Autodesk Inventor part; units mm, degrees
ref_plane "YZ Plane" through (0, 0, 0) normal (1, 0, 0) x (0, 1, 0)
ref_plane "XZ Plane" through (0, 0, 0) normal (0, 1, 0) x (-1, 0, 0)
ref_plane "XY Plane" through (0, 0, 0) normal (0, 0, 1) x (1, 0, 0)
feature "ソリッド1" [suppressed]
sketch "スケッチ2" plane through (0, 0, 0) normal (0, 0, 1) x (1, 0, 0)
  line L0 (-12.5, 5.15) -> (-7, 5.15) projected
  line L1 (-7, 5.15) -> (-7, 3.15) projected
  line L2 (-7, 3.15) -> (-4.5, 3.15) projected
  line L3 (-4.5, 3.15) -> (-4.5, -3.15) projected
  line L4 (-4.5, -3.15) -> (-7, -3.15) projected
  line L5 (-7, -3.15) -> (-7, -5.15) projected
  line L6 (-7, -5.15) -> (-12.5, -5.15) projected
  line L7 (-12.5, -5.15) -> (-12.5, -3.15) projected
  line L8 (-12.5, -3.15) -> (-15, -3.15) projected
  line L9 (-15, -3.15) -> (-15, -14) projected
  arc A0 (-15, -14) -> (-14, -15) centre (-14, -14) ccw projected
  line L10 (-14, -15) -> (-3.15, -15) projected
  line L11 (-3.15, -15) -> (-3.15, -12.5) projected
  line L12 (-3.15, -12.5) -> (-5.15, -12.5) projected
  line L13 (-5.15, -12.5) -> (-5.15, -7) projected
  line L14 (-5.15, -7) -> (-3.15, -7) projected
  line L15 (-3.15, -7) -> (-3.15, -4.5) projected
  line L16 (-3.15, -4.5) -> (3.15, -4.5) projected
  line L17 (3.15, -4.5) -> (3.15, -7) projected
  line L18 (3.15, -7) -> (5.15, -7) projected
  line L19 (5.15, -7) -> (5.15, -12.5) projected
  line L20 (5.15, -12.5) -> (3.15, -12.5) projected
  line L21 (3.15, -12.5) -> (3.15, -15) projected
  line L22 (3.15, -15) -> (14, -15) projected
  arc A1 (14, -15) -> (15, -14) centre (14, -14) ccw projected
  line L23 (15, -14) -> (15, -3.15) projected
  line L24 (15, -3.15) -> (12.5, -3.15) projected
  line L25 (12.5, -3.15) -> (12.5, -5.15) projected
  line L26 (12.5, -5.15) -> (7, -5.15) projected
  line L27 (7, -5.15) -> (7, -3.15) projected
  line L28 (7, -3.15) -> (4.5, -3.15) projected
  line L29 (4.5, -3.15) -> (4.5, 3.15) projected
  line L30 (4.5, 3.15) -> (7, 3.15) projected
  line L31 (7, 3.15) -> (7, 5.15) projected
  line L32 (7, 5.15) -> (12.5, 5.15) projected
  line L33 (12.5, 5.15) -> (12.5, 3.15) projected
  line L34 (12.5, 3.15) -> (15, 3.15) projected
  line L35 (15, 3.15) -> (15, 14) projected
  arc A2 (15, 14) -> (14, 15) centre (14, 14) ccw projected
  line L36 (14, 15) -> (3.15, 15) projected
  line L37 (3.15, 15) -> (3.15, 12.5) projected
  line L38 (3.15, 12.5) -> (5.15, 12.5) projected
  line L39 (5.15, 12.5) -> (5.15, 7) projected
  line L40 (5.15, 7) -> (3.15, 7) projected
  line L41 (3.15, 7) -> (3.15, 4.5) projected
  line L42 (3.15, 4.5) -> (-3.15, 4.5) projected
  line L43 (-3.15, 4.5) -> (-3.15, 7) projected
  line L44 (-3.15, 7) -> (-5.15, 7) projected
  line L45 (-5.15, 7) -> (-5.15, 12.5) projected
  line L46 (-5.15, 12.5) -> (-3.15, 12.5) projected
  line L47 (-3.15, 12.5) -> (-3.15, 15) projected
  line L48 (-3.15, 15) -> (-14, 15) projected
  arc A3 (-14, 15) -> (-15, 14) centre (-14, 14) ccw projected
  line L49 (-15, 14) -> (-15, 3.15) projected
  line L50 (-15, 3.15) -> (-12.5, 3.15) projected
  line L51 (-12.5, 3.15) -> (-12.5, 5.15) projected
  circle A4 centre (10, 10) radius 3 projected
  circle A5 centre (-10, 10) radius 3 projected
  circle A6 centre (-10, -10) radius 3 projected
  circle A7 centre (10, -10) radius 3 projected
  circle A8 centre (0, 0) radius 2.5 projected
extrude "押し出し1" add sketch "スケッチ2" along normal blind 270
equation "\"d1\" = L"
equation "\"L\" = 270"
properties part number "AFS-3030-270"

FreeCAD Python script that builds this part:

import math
import FreeCAD as App
import Part
import Sketcher
from FreeCAD import Vector
Q = App.Units.Quantity

doc = App.newDocument("Part")
params = doc.addObject("Spreadsheet::Sheet", "Params")
for row, (alias, value) in enumerate([
    ("sketch1_diameter", "6 mm"),
    ("sketch1_diameter2", "5 mm"),
    ("sketch1_radius", "1 mm"),
    ("sketch1_width", "2 mm"),
    ("sketch1_width2", "5.5 mm"),
    ("pad1_length", "270 mm"),
], start=1):
    params.set(f"A{row}", alias)
    params.set(f"B{row}", "=" + value)
    params.setAlias(f"B{row}", alias)

body = doc.addObject("PartDesign::Body", "Body")

# Sketch on XY plane
sketch1 = body.newObject("Sketcher::SketchObject", "Sketch")
sketch1.AttachmentSupport = (doc.getObject("XY_Plane"), [""])
sketch1.MapMode = "FlatFace"
sketch1.addGeometry([
    Part.LineSegment(Vector(-12.5, 3.1, 0), Vector(-12.5, 5.2, 0)),  # 0
    Part.LineSegment(Vector(-12.5, 5.2, 0), Vector(-7, 5.2, 0)),  # 1
    Part.LineSegment(Vector(-7, 5.2, 0), Vector(-7, 3.1, 0)),  # 2
    Part.LineSegment(Vector(-7, 3.1, 0), Vector(-4.5, 3.1, 0)),  # 3
    Part.LineSegment(Vector(-4.5, 3.1, 0), Vector(-4.5, -3.1, 0)),  # 4
    Part.LineSegment(Vector(-4.5, -3.1, 0), Vector(-7, -3.1, 0)),  # 5
    Part.LineSegment(Vector(-7, -3.1, 0), Vector(-7, -5.2, 0)),  # 6
    Part.LineSegment(Vector(-7, -5.2, 0), Vector(-12.5, -5.2, 0)),  # 7
    Part.LineSegment(Vector(-12.5, -5.2, 0), Vector(-12.5, -3.1, 0)),  # 8
    Part.LineSegment(Vector(-12.5, -3.1, 0), Vector(-15, -3.1, 0)),  # 9
    Part.LineSegment(Vector(-15, -3.1, 0), Vector(-15, -14, 0)),  # 10
    Part.ArcOfCircle(Part.Circle(Vector(-14, -14, 0), Vector(0, 0, 1), 1), math.radians(180), math.radians(270)),  # 11
    Part.LineSegment(Vector(-14, -15, 0), Vector(-3.1, -15, 0)),  # 12
    Part.LineSegment(Vector(-3.1, -15, 0), Vector(-3.1, -12.5, 0)),  # 13
    Part.LineSegment(Vector(-3.1, -12.5, 0), Vector(-5.2, -12.5, 0)),  # 14
    Part.LineSegment(Vector(-5.2, -12.5, 0), Vector(-5.2, -7, 0)),  # 15
    Part.LineSegment(Vector(-5.2, -7, 0), Vector(-3.1, -7, 0)),  # 16
    Part.LineSegment(Vector(-3.1, -7, 0), Vector(-3.1, -4.5, 0)),  # 17
    Part.LineSegment(Vector(-3.1, -4.5, 0), Vector(3.1, -4.5, 0)),  # 18
    Part.LineSegment(Vector(3.1, -4.5, 0), Vector(3.1, -7, 0)),  # 19
    Part.LineSegment(Vector(3.1, -7, 0), Vector(5.2, -7, 0)),  # 20
    Part.LineSegment(Vector(5.2, -7, 0), Vector(5.2, -12.5, 0)),  # 21
    Part.LineSegment(Vector(5.2, -12.5, 0), Vector(3.1, -12.5, 0)),  # 22
    Part.LineSegment(Vector(3.1, -12.5, 0), Vector(3.1, -15, 0)),  # 23
    Part.LineSegment(Vector(3.1, -15, 0), Vector(14, -15, 0)),  # 24
    Part.ArcOfCircle(Part.Circle(Vector(14, -14, 0), Vector(0, 0, 1), 1), math.radians(-90), math.radians(0)),  # 25
    Part.LineSegment(Vector(15, -14, 0), Vector(15, -3.1, 0)),  # 26
    Part.LineSegment(Vector(15, -3.1, 0), Vector(12.5, -3.1, 0)),  # 27
    Part.LineSegment(Vector(12.5, -3.1, 0), Vector(12.5, -5.2, 0)),  # 28
    Part.LineSegment(Vector(12.5, -5.2, 0), Vector(7, -5.2, 0)),  # 29
    Part.LineSegment(Vector(7, -5.2, 0), Vector(7, -3.1, 0)),  # 30
    Part.LineSegment(Vector(7, -3.1, 0), Vector(4.5, -3.1, 0)),  # 31
    Part.LineSegment(Vector(4.5, -3.1, 0), Vector(4.5, 3.1, 0)),  # 32
    Part.LineSegment(Vector(4.5, 3.1, 0), Vector(7, 3.1, 0)),  # 33
    Part.LineSegment(Vector(7, 3.1, 0), Vector(7, 5.2, 0)),  # 34
    Part.LineSegment(Vector(7, 5.2, 0), Vector(12.5, 5.2, 0)),  # 35
    Part.LineSegment(Vector(12.5, 5.2, 0), Vector(12.5, 3.1, 0)),  # 36
    Part.LineSegment(Vector(12.5, 3.1, 0), Vector(15, 3.1, 0)),  # 37
    Part.LineSegment(Vector(15, 3.1, 0), Vector(15, 14, 0)),  # 38
    Part.ArcOfCircle(Part.Circle(Vector(14, 14, 0), Vector(0, 0, 1), 1), math.radians(0), math.radians(90)),  # 39
    Part.LineSegment(Vector(14, 15, 0), Vector(3.1, 15, 0)),  # 40
    Part.LineSegment(Vector(3.1, 15, 0), Vector(3.1, 12.5, 0)),  # 41
    Part.LineSegment(Vector(3.1, 12.5, 0), Vector(5.2, 12.5, 0)),  # 42
    Part.LineSegment(Vector(5.2, 12.5, 0), Vector(5.2, 7, 0)),  # 43
    Part.LineSegment(Vector(5.2, 7, 0), Vector(3.1, 7, 0)),  # 44
    Part.LineSegment(Vector(3.1, 7, 0), Vector(3.1, 4.5, 0)),  # 45
    Part.LineSegment(Vector(3.1, 4.5, 0), Vector(-3.1, 4.5, 0)),  # 46
    Part.LineSegment(Vector(-3.1, 4.5, 0), Vector(-3.1, 7, 0)),  # 47
    Part.LineSegment(Vector(-3.1, 7, 0), Vector(-5.2, 7, 0)),  # 48
    Part.LineSegment(Vector(-5.2, 7, 0), Vector(-5.2, 12.5, 0)),  # 49
    Part.LineSegment(Vector(-5.2, 12.5, 0), Vector(-3.1, 12.5, 0)),  # 50
    Part.LineSegment(Vector(-3.1, 12.5, 0), Vector(-3.1, 15, 0)),  # 51
    Part.LineSegment(Vector(-3.1, 15, 0), Vector(-14, 15, 0)),  # 52
    Part.ArcOfCircle(Part.Circle(Vector(-14, 14, 0), Vector(0, 0, 1), 1), math.radians(90), math.radians(180)),  # 53
    Part.LineSegment(Vector(-15, 14, 0), Vector(-15, 3.1, 0)),  # 54
    Part.LineSegment(Vector(-15, 3.1, 0), Vector(-12.5, 3.1, 0)),  # 55
    Part.Circle(Vector(-10, -10, 0), Vector(0, 0, 1), 3),  # 56
    Part.Circle(Vector(10, -10, 0), Vector(0, 0, 1), 3),  # 57
    Part.Circle(Vector(-10, 10, 0), Vector(0, 0, 1), 3),  # 58
    Part.Circle(Vector(0, 0, 0), Vector(0, 0, 1), 2.5),  # 59
    Part.Circle(Vector(10, 10, 0), Vector(0, 0, 1), 3),  # 60
], False)
sketch1.addConstraint([
    Sketcher.Constraint("Coincident", 0, 2, 1, 1),
    Sketcher.Constraint("Coincident", 1, 2, 2, 1),
    Sketcher.Constraint("Coincident", 2, 2, 3, 1),
    Sketcher.Constraint("Coincident", 3, 2, 4, 1),
    Sketcher.Constraint("Coincident", 4, 2, 5, 1),
    Sketcher.Constraint("Coincident", 5, 2, 6, 1),
    Sketcher.Constraint("Coincident", 6, 2, 7, 1),
    Sketcher.Constraint("Coincident", 7, 2, 8, 1),
    Sketcher.Constraint("Coincident", 8, 2, 9, 1),
    Sketcher.Constraint("Coincident", 9, 2, 10, 1),
    Sketcher.Constraint("Tangent", 10, 2, 11, 1),
    Sketcher.Constraint("Tangent", 11, 2, 12, 1),
    Sketcher.Constraint("Coincident", 12, 2, 13, 1),
    Sketcher.Constraint("Coincident", 13, 2, 14, 1),
    Sketcher.Constraint("Coincident", 14, 2, 15, 1),
    Sketcher.Constraint("Coincident", 15, 2, 16, 1),
    Sketcher.Constraint("Coincident", 16, 2, 17, 1),
    Sketcher.Constraint("Coincident", 17, 2, 18, 1),
    Sketcher.Constraint("Coincident", 18, 2, 19, 1),
    Sketcher.Constraint("Coincident", 19, 2, 20, 1),
    Sketcher.Constraint("Coincident", 20, 2, 21, 1),
    Sketcher.Constraint("Coincident", 21, 2, 22, 1),
    Sketcher.Constraint("Coincident", 22, 2, 23, 1),
    Sketcher.Constraint("Coincident", 23, 2, 24, 1),
    Sketcher.Constraint("Tangent", 24, 2, 25, 1),
    Sketcher.Constraint("Tangent", 25, 2, 26, 1),
    Sketcher.Constraint("Coincident", 26, 2, 27, 1),
    Sketcher.Constraint("Coincident", 27, 2, 28, 1),
    Sketcher.Constraint("Coincident", 28, 2, 29, 1),
    Sketcher.Constraint("Coincident", 29, 2, 30, 1),
    Sketcher.Constraint("Coincident", 30, 2, 31, 1),
    Sketcher.Constraint("Coincident", 31, 2, 32, 1),
    Sketcher.Constraint("Coincident", 32, 2, 33, 1),
    Sketcher.Constraint("Coincident", 33, 2, 34, 1),
    Sketcher.Constraint("Coincident", 34, 2, 35, 1),
    Sketcher.Constraint("Coincident", 35, 2, 36, 1),
    Sketcher.Constraint("Coincident", 36, 2, 37, 1),
    Sketcher.Constraint("Coincident", 37, 2, 38, 1),
    Sketcher.Constraint("Tangent", 38, 2, 39, 1),
    Sketcher.Constraint("Tangent", 39, 2, 40, 1),
    Sketcher.Constraint("Coincident", 40, 2, 41, 1),
    Sketcher.Constraint("Coincident", 41, 2, 42, 1),
    Sketcher.Constraint("Coincident", 42, 2, 43, 1),
    Sketcher.Constraint("Coincident", 43, 2, 44, 1),
    Sketcher.Constraint("Coincident", 44, 2, 45, 1),
    Sketcher.Constraint("Coincident", 45, 2, 46, 1),
    Sketcher.Constraint("Coincident", 46, 2, 47, 1),
    Sketcher.Constraint("Coincident", 47, 2, 48, 1),
    Sketcher.Constraint("Coincident", 48, 2, 49, 1),
    Sketcher.Constraint("Coincident", 49, 2, 50, 1),
    Sketcher.Constraint("Coincident", 50, 2, 51, 1),
    Sketcher.Constraint("Coincident", 51, 2, 52, 1),
    Sketcher.Constraint("Tangent", 52, 2, 53, 1),
    Sketcher.Constraint("Tangent", 53, 2, 54, 1),
    Sketcher.Constraint("Coincident", 54, 2, 55, 1),
    Sketcher.Constraint("Coincident", 55, 2, 0, 1),
    Sketcher.Constraint("Vertical", 0),
    Sketcher.Constraint("Horizontal", 1),
    Sketcher.Constraint("Vertical", 2),
    Sketcher.Constraint("Horizontal", 3),
    Sketcher.Constraint("Vertical", 4),
    Sketcher.Constraint("Horizontal", 5),
    Sketcher.Constraint("Vertical", 6),
    Sketcher.Constraint("Horizontal", 7),
    Sketcher.Constraint("Vertical", 8),
    Sketcher.Constraint("Horizontal", 9),
    Sketcher.Constraint("Vertical", 10),
    Sketcher.Constraint("Horizontal", 12),
    Sketcher.Constraint("Vertical", 13),
    Sketcher.Constraint("Horizontal", 14),
    Sketcher.Constraint("Vertical", 15),
    Sketcher.Constraint("Horizontal", 16),
    Sketcher.Constraint("Vertical", 17),
    Sketcher.Constraint("Horizontal", 18),
    Sketcher.Constraint("Vertical", 19),
    Sketcher.Constraint("Horizontal", 20),
    Sketcher.Constraint("Vertical", 21),
    Sketcher.Constraint("Horizontal", 22),
    Sketcher.Constraint("Vertical", 23),
    Sketcher.Constraint("Horizontal", 24),
    Sketcher.Constraint("Vertical", 26),
    Sketcher.Constraint("Horizontal", 27),
    Sketcher.Constraint("Vertical", 28),
    Sketcher.Constraint("Horizontal", 29),
    Sketcher.Constraint("Vertical", 30),
    Sketcher.Constraint("Horizontal", 31),
    Sketcher.Constraint("Vertical", 32),
    Sketcher.Constraint("Horizontal", 33),
    Sketcher.Constraint("Vertical", 34),
    Sketcher.Constraint("Horizontal", 35),
    Sketcher.Constraint("Vertical", 36),
    Sketcher.Constraint("Horizontal", 37),
    Sketcher.Constraint("Vertical", 38),
    Sketcher.Constraint("Horizontal", 40),
    Sketcher.Constraint("Vertical", 41),
    Sketcher.Constraint("Horizontal", 42),
    Sketcher.Constraint("Vertical", 43),
    Sketcher.Constraint("Horizontal", 44),
    Sketcher.Constraint("Vertical", 45),
    Sketcher.Constraint("Horizontal", 46),
    Sketcher.Constraint("Vertical", 47),
    Sketcher.Constraint("Horizontal", 48),
    Sketcher.Constraint("Vertical", 49),
    Sketcher.Constraint("Horizontal", 50),
    Sketcher.Constraint("Vertical", 51),
    Sketcher.Constraint("Horizontal", 52),
    Sketcher.Constraint("Vertical", 54),
    Sketcher.Constraint("Horizontal", 55),
    Sketcher.Constraint("Coincident", 59, 3, -1, 1),
    Sketcher.Constraint("Equal", 11, 25),
    Sketcher.Constraint("Equal", 25, 39),
    Sketcher.Constraint("Equal", 39, 53),
    Sketcher.Constraint("Equal", 56, 57),
    Sketcher.Constraint("Equal", 57, 58),
    Sketcher.Constraint("Equal", 58, 60),
    Sketcher.Constraint("Symmetric", 11, 3, 39, 3, -1, 1),
    Sketcher.Constraint("Symmetric", 25, 3, 53, 3, -1, 1),
    Sketcher.Constraint("Symmetric", 57, 3, 58, 3, -1, 1),
    Sketcher.Constraint("Symmetric", 56, 3, 60, 3, -1, 1),
    Sketcher.Constraint("Symmetric", 0, 2, 28, 2, -1, 1),
    Sketcher.Constraint("Symmetric", 2, 2, 30, 2, -1, 1),
    Sketcher.Constraint("Symmetric", 4, 2, 32, 2, -1, 1),
    Sketcher.Constraint("Symmetric", 6, 2, 34, 2, -1, 1),
    Sketcher.Constraint("Symmetric", 8, 2, 36, 2, -1, 1),
    Sketcher.Constraint("Symmetric", 13, 2, 41, 2, -1, 1),
    Sketcher.Constraint("Symmetric", 15, 2, 43, 2, -1, 1),
    Sketcher.Constraint("Symmetric", 17, 2, 45, 2, -1, 1),
    Sketcher.Constraint("Symmetric", 19, 2, 47, 2, -1, 1),
    Sketcher.Constraint("Symmetric", 21, 2, 49, 2, -1, 1),
    Sketcher.Constraint("Symmetric", 11, 3, 25, 3, -2),
    Sketcher.Constraint("Symmetric", 56, 3, 57, 3, -2),
    Sketcher.Constraint("Symmetric", 16, 2, 19, 2, -2),
    Sketcher.Constraint("Symmetric", 14, 2, 21, 2, -2),
    Sketcher.Constraint("Symmetric", 8, 2, 27, 2, -2),
    Sketcher.Constraint("Symmetric", 6, 2, 29, 2, -2),
    Sketcher.Constraint("Horizontal", 5, 2, 8, 2),
    Sketcher.Constraint("Horizontal", 27, 2, 30, 2),
    Sketcher.Constraint("Horizontal", 37, 2, 54, 2),
    Sketcher.Constraint("Vertical", 13, 2, 16, 2),
    Sketcher.Constraint("Vertical", 19, 2, 22, 2),
    Sketcher.Constraint("Vertical", 47, 2, 50, 2),
    Sketcher.Constraint("Equal", 5, 9),
    Sketcher.Constraint("Equal", 50, 0),
    Sketcher.Constraint("Equal", 46, 4),
    Sketcher.Constraint("Equal", 52, 10),
    Sketcher.Constraint("Equal", 55, 13),
    Sketcher.Constraint("Equal", 35, 15),
    Sketcher.Constraint("Equal", 13, 17),
    Sketcher.Constraint("Diameter", 56, Q("6 mm")),
    Sketcher.Constraint("Diameter", 59, Q("5 mm")),
    Sketcher.Constraint("Radius", 11, Q("1 mm")),
    Sketcher.Constraint("DistanceX", 14, 2, 14, 1, Q("2 mm")),
    Sketcher.Constraint("DistanceX", 1, 1, 1, 2, Q("5.5 mm")),
    Sketcher.Constraint("DistanceX", 3, 1, 3, 2, Q("2.5 mm")),
    Sketcher.Constraint("DistanceX", 18, 1, 18, 2, Q("6.3 mm")),
    Sketcher.Constraint("DistanceX", 11, 3, -1, 1, Q("14 mm")),
    Sketcher.Constraint("DistanceX", 56, 3, -1, 1, Q("10 mm")),
    Sketcher.Constraint("DistanceY", 56, 3, -1, 1, Q("10 mm")),
])
sketch1.setExpression("Constraints[148]", "Params.sketch1_diameter")
sketch1.setExpression("Constraints[149]", "Params.sketch1_diameter2")
sketch1.setExpression("Constraints[150]", "Params.sketch1_radius")
sketch1.setExpression("Constraints[151]", "Params.sketch1_width")
sketch1.setExpression("Constraints[152]", "Params.sketch1_width2")
pad1 = body.newObject("PartDesign::Pad", "Pad")
pad1.Profile = sketch1
pad1.setExpression("Length", "Params.pad1_length")

doc.recompute()
